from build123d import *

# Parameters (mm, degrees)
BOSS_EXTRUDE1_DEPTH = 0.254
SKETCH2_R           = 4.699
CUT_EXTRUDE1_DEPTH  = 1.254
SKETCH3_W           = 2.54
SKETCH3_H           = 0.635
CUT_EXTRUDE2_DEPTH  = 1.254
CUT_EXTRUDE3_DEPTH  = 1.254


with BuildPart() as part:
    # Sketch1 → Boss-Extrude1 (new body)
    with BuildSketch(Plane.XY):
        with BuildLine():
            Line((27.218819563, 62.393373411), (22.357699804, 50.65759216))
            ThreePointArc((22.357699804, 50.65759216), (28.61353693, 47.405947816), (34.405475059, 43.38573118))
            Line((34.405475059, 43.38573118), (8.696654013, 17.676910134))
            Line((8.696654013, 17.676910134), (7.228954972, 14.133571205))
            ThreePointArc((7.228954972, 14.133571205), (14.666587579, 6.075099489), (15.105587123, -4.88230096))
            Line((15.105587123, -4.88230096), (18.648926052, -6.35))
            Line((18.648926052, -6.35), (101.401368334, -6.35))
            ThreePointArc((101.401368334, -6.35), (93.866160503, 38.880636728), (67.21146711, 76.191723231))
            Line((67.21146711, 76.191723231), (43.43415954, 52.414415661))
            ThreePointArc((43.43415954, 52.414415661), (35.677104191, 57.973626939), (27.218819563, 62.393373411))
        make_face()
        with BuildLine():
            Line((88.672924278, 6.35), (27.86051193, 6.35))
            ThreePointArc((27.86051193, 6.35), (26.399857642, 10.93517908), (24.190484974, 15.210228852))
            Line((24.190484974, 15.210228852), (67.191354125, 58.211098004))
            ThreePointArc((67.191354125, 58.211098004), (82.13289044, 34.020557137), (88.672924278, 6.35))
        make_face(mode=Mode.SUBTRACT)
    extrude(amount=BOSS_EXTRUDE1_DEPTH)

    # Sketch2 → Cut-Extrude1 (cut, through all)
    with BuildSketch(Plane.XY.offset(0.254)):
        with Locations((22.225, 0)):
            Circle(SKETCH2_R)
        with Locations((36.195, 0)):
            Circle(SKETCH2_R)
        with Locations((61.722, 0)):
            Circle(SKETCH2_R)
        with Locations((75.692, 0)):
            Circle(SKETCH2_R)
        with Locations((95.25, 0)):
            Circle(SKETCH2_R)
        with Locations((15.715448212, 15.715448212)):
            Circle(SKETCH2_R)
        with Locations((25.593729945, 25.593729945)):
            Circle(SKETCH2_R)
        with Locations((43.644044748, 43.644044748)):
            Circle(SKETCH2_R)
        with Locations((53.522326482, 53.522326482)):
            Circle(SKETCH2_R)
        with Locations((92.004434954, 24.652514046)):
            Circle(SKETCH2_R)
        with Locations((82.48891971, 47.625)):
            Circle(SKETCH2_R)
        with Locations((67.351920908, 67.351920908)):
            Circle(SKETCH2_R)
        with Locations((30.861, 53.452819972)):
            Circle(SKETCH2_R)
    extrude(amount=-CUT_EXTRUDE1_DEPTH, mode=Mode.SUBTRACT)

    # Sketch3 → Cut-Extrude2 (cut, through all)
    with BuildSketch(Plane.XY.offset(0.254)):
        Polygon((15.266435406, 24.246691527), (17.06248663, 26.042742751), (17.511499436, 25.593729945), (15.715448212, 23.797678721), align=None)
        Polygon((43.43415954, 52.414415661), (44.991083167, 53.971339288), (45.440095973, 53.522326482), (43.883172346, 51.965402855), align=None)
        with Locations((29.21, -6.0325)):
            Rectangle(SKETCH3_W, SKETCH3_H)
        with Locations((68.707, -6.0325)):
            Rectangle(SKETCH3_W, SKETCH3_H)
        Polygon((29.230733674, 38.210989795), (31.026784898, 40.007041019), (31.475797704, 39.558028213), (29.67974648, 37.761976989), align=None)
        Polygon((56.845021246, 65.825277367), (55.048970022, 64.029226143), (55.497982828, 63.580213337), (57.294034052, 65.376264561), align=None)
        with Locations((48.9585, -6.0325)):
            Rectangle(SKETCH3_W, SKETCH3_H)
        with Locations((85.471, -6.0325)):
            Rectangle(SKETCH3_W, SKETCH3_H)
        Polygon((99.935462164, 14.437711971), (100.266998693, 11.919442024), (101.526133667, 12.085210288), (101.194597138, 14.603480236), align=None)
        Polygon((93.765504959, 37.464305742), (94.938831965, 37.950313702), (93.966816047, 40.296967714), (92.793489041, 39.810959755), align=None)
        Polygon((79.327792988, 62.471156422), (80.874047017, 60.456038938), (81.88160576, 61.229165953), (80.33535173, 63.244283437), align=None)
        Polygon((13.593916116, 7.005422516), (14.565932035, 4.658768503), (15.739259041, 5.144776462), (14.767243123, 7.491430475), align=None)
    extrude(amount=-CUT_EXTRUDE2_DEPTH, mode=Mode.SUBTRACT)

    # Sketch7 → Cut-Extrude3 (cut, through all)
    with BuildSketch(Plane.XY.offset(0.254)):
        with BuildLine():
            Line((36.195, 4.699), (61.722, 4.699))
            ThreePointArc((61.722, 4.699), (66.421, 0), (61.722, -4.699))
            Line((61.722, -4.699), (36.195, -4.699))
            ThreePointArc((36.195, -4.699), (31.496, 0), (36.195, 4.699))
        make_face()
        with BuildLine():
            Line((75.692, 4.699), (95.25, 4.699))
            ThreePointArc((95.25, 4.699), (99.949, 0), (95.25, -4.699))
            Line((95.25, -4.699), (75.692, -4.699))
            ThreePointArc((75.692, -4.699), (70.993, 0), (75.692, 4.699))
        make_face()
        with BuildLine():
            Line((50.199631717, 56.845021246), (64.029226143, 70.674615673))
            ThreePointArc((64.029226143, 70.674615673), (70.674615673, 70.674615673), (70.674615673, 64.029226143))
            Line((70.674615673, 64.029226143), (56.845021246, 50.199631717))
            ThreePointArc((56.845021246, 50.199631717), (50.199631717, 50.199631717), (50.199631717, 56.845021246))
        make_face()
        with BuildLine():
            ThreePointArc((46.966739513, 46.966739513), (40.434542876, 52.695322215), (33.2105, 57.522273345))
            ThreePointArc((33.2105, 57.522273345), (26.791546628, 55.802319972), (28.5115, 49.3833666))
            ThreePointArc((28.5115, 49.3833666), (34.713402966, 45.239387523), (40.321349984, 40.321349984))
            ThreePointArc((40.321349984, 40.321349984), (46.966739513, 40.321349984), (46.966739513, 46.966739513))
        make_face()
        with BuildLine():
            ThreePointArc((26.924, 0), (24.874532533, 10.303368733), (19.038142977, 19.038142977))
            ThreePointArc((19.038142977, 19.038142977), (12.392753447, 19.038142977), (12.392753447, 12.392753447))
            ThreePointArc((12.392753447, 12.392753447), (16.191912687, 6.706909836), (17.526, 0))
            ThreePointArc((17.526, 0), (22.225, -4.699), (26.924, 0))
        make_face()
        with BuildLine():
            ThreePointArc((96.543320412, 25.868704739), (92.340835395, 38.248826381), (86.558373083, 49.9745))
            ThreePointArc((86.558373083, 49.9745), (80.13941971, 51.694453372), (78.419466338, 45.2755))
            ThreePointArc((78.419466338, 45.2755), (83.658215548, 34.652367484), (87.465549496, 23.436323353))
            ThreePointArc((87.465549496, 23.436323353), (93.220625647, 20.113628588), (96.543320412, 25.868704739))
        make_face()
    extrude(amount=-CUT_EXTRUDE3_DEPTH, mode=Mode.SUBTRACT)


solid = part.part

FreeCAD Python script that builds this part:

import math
import FreeCAD as App
import Part
import Sketcher

V = App.Vector
Q = App.Units.Quantity

doc = App.newDocument("Part")
params = doc.addObject("Spreadsheet::Sheet", "Params")
for row, (alias, value) in enumerate([
    ("sketch1_radius", "4 in"),
    ("sketch1_radius2", "3.5 in"),
    ("sketch1_radius3", "2.18 in"),
    ("sketch1_radius4", "2.68 in"),
    ("sketch1_radius5", "0.625 in"),
    ("pad1_length", "0.01 in"),
    ("sketch2_diameter", "0.37 in"),
    ("sketch3_width", "0.1 in"),
    ("sketch3_length", "0.1 in"),
    ("sketch3_length2", "0.05 in"),
    ("sketch3_height", "0.025 in"),
    ("sketch3_length3", "0.025 in"),
    ("sketch4_radius", "1.06 in"),
    ("sketch4_radius2", "0.69 in"),
    ("sketch4_radius3", "2.615 in"),
    ("sketch4_radius4", "3.935 in"),
    ("sketch4_width", "0.77 in"),
], start=1):
    params.set(f"A{row}", alias)
    params.set(f"B{row}", "=" + value)
    params.setAlias(f"B{row}", alias)

body = doc.addObject("PartDesign::Body", "Body")

sketch1 = body.newObject("Sketcher::SketchObject", "Sketch")
sketch1.AttachmentSupport = (doc.getObject("XY_Plane"), [""])
sketch1.MapMode = "FlatFace"
sketch1.addGeometry([
    Part.LineSegment(V(27.21882, 62.393373, 0), V(22.3577, 50.657592, 0)),
    Part.ArcOfCircle(Part.Circle(V(0, 0, 0), V(0, 0, 1), 55.372), math.radians(51.585105), math.radians(66.185761)),
    Part.LineSegment(V(34.405475, 43.385731, 0), V(8.696654, 17.67691, 0)),
    Part.LineSegment(V(8.696654, 17.67691, 0), V(7.228955, 14.133571, 0)),
    Part.ArcOfCircle(Part.Circle(V(0, 0, 0), V(0, 0, 1), 15.875), math.radians(-17.911434), math.radians(62.911434)),
    Part.LineSegment(V(15.105587, -4.882301, 0), V(18.648926, -6.35, 0)),
    Part.LineSegment(V(18.648926, -6.35, 0), V(101.401368, -6.35, 0)),
    Part.ArcOfCircle(Part.Circle(V(0, 0, 0), V(0, 0, 1), 101.6), math.radians(-3.583322), math.radians(48.583322)),
    Part.LineSegment(V(67.211467, 76.191723, 0), V(43.43416, 52.414416, 0)),
    Part.ArcOfCircle(Part.Circle(V(0, 0, 0), V(0, 0, 1), 68.072), math.radians(50.352538), math.radians(66.430987)),
    Part.ArcOfCircle(Part.Circle(V(0, 0, 0), V(0, 0, 1), 88.9), math.radians(4.096044), math.radians(40.903956)),
    Part.LineSegment(V(88.672924, 6.35, 0), V(27.860512, 6.35, 0)),
    Part.ArcOfCircle(Part.Circle(V(0, 0, 0), V(0, 0, 1), 28.575), math.radians(12.839588), math.radians(32.160412)),
    Part.LineSegment(V(24.190485, 15.210229, 0), V(67.191354, 58.211098, 0)),
], False)
sketch1.addConstraint([
    Sketcher.Constraint("Coincident", 0, 2, 1, 2),
    Sketcher.Constraint("Coincident", 1, 1, 2, 1),
    Sketcher.Constraint("Coincident", 2, 2, 3, 1),
    Sketcher.Constraint("Coincident", 3, 2, 4, 2),
    Sketcher.Constraint("Coincident", 4, 1, 5, 1),
    Sketcher.Constraint("Coincident", 5, 2, 6, 1),
    Sketcher.Constraint("Coincident", 6, 2, 7, 1),
    Sketcher.Constraint("Coincident", 7, 2, 8, 1),
    Sketcher.Constraint("Coincident", 8, 2, 9, 1),
    Sketcher.Constraint("Coincident", 9, 2, 0, 1),
    Sketcher.Constraint("Coincident", 10, 1, 11, 1),
    Sketcher.Constraint("Coincident", 11, 2, 12, 1),
    Sketcher.Constraint("Coincident", 12, 2, 13, 1),
    Sketcher.Constraint("Coincident", 13, 2, 10, 2),
    Sketcher.Constraint("Horizontal", 6),
    Sketcher.Constraint("Horizontal", 11),
    Sketcher.Constraint("Coincident", 1, 3, -1, 1),
    Sketcher.Constraint("Coincident", 4, 3, -1, 1),
    Sketcher.Constraint("Coincident", 7, 3, -1, 1),
    Sketcher.Constraint("Coincident", 9, 3, -1, 1),
    Sketcher.Constraint("Coincident", 10, 3, -1, 1),
    Sketcher.Constraint("Coincident", 12, 3, -1, 1),
    Sketcher.Constraint("Parallel", 0, 3),
    Sketcher.Constraint("Perpendicular", 3, 5),
    Sketcher.Constraint("Parallel", 2, 8),
    Sketcher.Constraint("Parallel", 8, 13),
    Sketcher.Constraint("Equal", 3, 5),
    Sketcher.Constraint("Radius", 7, Q("4 in")),
    Sketcher.Constraint("Radius", 10, Q("3.5 in")),
    Sketcher.Constraint("Radius", 1, Q("2.18 in")),
    Sketcher.Constraint("Radius", 9, Q("2.68 in")),
    Sketcher.Constraint("Angle", 2, Q("-135 deg")),
    Sketcher.Constraint("Radius", 4, Q("0.625 in")),
    Sketcher.Constraint("Radius", 12, Q("1.125 in")),
    Sketcher.Constraint("Angle", 0, Q("-112.5 deg")),
    Sketcher.Constraint("DistanceY", 6, 2, 10, 1, Q("0.5 in")),
    Sketcher.Constraint("DistanceY", 5, 2, -1, 1, Q("0.25 in")),
    Sketcher.Constraint("DistanceX", -1, 1, 0, 2, 22.3577),
    Sketcher.Constraint("DistanceY", 4, 1, -1, 1, 4.882301),
    Sketcher.Constraint("DistanceY", -1, 1, 13, 2, 58.211098),
    Sketcher.Constraint("DistanceX", 7, 2, 6, 2, 34.189901),
    Sketcher.Constraint("DistanceY", -1, 1, 1, 1, 43.385731),
])
sketch1.setExpression("Constraints[27]", "Params.sketch1_radius")
sketch1.setExpression("Constraints[28]", "Params.sketch1_radius2")
sketch1.setExpression("Constraints[29]", "Params.sketch1_radius3")
sketch1.setExpression("Constraints[30]", "Params.sketch1_radius4")
sketch1.setExpression("Constraints[32]", "Params.sketch1_radius5")
pad1 = body.newObject("PartDesign::Pad", "Pad")
pad1.Profile = sketch1
pad1.setExpression("Length", "Params.pad1_length")

sketch2 = body.newObject("Sketcher::SketchObject", "Sketch001")
sketch2.AttachmentSupport = (doc.getObject("XY_Plane"), [""])
sketch2.MapMode = "FlatFace"
sketch2.AttachmentOffset = App.Placement(V(0, 0, 0.01 * 25.4), App.Rotation())
sketch2.addGeometry([
    Part.Circle(V(22.225, 0, 0), V(0, 0, 1), 4.699),
    Part.Circle(V(36.195, 0, 0), V(0, 0, 1), 4.699),
    Part.Circle(V(61.722, 0, 0), V(0, 0, 1), 4.699),
    Part.Circle(V(75.692, 0, 0), V(0, 0, 1), 4.699),
    Part.Circle(V(95.25, 0, 0), V(0, 0, 1), 4.699),
    Part.Circle(V(15.715448, 15.715448, 0), V(0, 0, 1), 4.699),
    Part.Circle(V(25.59373, 25.59373, 0), V(0, 0, 1), 4.699),
    Part.Circle(V(43.644045, 43.644045, 0), V(0, 0, 1), 4.699),
    Part.Circle(V(53.522326, 53.522326, 0), V(0, 0, 1), 4.699),
    Part.Circle(V(92.004435, 24.652514, 0), V(0, 0, 1), 4.699),
    Part.Circle(V(82.48892, 47.625, 0), V(0, 0, 1), 4.699),
    Part.Circle(V(67.351921, 67.351921, 0), V(0, 0, 1), 4.699),
    Part.Circle(V(30.861, 53.45282, 0), V(0, 0, 1), 4.699),
], False)
sketch2.addConstraint([
    Sketcher.Constraint("Equal", 0, 1),
    Sketcher.Constraint("Equal", 1, 2),
    Sketcher.Constraint("Equal", 2, 3),
    Sketcher.Constraint("Equal", 3, 4),
    Sketcher.Constraint("Equal", 4, 5),
    Sketcher.Constraint("Equal", 5, 6),
    Sketcher.Constraint("Equal", 6, 7),
    Sketcher.Constraint("Equal", 7, 8),
    Sketcher.Constraint("Equal", 8, 9),
    Sketcher.Constraint("Equal", 9, 10),
    Sketcher.Constraint("Equal", 10, 11),
    Sketcher.Constraint("Equal", 11, 12),
    Sketcher.Constraint("PointOnObject", 0, 3, -1),
    Sketcher.Constraint("PointOnObject", 1, 3, -1),
    Sketcher.Constraint("PointOnObject", 2, 3, -1),
    Sketcher.Constraint("PointOnObject", 3, 3, -1),
    Sketcher.Constraint("PointOnObject", 4, 3, -1),
    Sketcher.Constraint("Diameter", 0, Q("0.37 in")),
    Sketcher.Constraint("DistanceX", -1, 1, 2, 3, Q("2.43 in")),
    Sketcher.Constraint("DistanceX", -1, 1, 3, 3, Q("2.98 in")),
    Sketcher.Constraint("DistanceX", -1, 1, 4, 3, Q("3.75 in")),
    Sketcher.Constraint("DistanceX", 0, 3, 1, 3, Q("0.55 in")),
    Sketcher.Constraint("DistanceX", -1, 1, 0, 3, Q("0.875 in")),
    Sketcher.Constraint("DistanceY", -1, 1, 10, 3, Q("1.875 in")),
    Sketcher.Constraint("DistanceX", -1, 1, 12, 3, Q("1.215 in")),
    Sketcher.Constraint("DistanceX", 11, 3, 10, 3, 15.136999),
    Sketcher.Constraint("DistanceY", 12, 3, 11, 3, 13.899101),
    Sketcher.Constraint("DistanceX", -1, 1, 5, 3, 15.715448),
    Sketcher.Constraint("DistanceY", -1, 1, 5, 3, 15.715448),
    Sketcher.Constraint("DistanceX", -1, 1, 6, 3, 25.59373),
    Sketcher.Constraint("DistanceY", -1, 1, 6, 3, 25.59373),
    Sketcher.Constraint("DistanceX", -1, 1, 10, 3, 82.48892),
    Sketcher.Constraint("DistanceY", -1, 1, 11, 3, 67.351921),
    Sketcher.Constraint("DistanceX", 7, 3, 8, 3, 9.878282),
    Sketcher.Constraint("DistanceY", 7, 3, 8, 3, 9.878282),
    Sketcher.Constraint("DistanceX", 5, 3, 8, 3, 37.806878),
    Sketcher.Constraint("DistanceY", 5, 3, 8, 3, 37.806878),
    Sketcher.Constraint("DistanceX", 8, 3, 9, 3, 38.482108),
    Sketcher.Constraint("DistanceY", 9, 3, 7, 3, 18.991531),
])
sketch2.setExpression("Constraints[17]", "Params.sketch2_diameter")
pocket1 = body.newObject("PartDesign::Pocket", "Pocket")
pocket1.Profile = sketch2
pocket1.Type = "ThroughAll"

sketch3 = body.newObject("Sketcher::SketchObject", "Sketch002")
sketch3.AttachmentSupport = (doc.getObject("XY_Plane"), [""])
sketch3.MapMode = "FlatFace"
sketch3.AttachmentOffset = App.Placement(V(0, 0, 0.01 * 25.4), App.Rotation())
sketch3.addGeometry([
    Part.LineSegment(V(17.062487, 26.042743, 0), V(15.266435, 24.246692, 0)),
    Part.LineSegment(V(15.266435, 24.246692, 0), V(15.715448, 23.797679, 0)),
    Part.LineSegment(V(15.715448, 23.797679, 0), V(17.511499, 25.59373, 0)),
    Part.LineSegment(V(17.511499, 25.59373, 0), V(17.062487, 26.042743, 0)),
    Part.LineSegment(V(44.991083, 53.971339, 0), V(43.43416, 52.414416, 0)),
    Part.LineSegment(V(43.43416, 52.414416, 0), V(43.883172, 51.965403, 0)),
    Part.LineSegment(V(43.883172, 51.965403, 0), V(45.440096, 53.522326, 0)),
    Part.LineSegment(V(45.440096, 53.522326, 0), V(44.991083, 53.971339, 0)),
    Part.LineSegment(V(27.94, -5.715, 0), V(27.94, -6.35, 0)),
    Part.LineSegment(V(27.94, -6.35, 0), V(30.48, -6.35, 0)),
    Part.LineSegment(V(30.48, -6.35, 0), V(30.48, -5.715, 0)),
    Part.LineSegment(V(30.48, -5.715, 0), V(27.94, -5.715, 0)),
    Part.LineSegment(V(67.437, -5.715, 0), V(67.437, -6.35, 0)),
    Part.LineSegment(V(67.437, -6.35, 0), V(69.977, -6.35, 0)),
    Part.LineSegment(V(69.977, -6.35, 0), V(69.977, -5.715, 0)),
    Part.LineSegment(V(69.977, -5.715, 0), V(67.437, -5.715, 0)),
    Part.LineSegment(V(31.026785, 40.007041, 0), V(29.230734, 38.21099, 0)),
    Part.LineSegment(V(29.230734, 38.21099, 0), V(29.679746, 37.761977, 0)),
    Part.LineSegment(V(29.679746, 37.761977, 0), V(31.475798, 39.558028, 0)),
    Part.LineSegment(V(31.475798, 39.558028, 0), V(31.026785, 40.007041, 0)),
    Part.LineSegment(V(56.845021, 65.825277, 0), V(55.04897, 64.029226, 0)),
    Part.LineSegment(V(55.04897, 64.029226, 0), V(55.497983, 63.580213, 0)),
    Part.LineSegment(V(55.497983, 63.580213, 0), V(57.294034, 65.376265, 0)),
    Part.LineSegment(V(57.294034, 65.376265, 0), V(56.845021, 65.825277, 0)),
    Part.LineSegment(V(47.6885, -5.715, 0), V(47.6885, -6.35, 0)),
    Part.LineSegment(V(47.6885, -6.35, 0), V(50.2285, -6.35, 0)),
    Part.LineSegment(V(50.2285, -6.35, 0), V(50.2285, -5.715, 0)),
    Part.LineSegment(V(50.2285, -5.715, 0), V(47.6885, -5.715, 0)),
    Part.LineSegment(V(84.201, -5.715, 0), V(84.201, -6.35, 0)),
    Part.LineSegment(V(84.201, -6.35, 0), V(86.741, -6.35, 0)),
    Part.LineSegment(V(86.741, -6.35, 0), V(86.741, -5.715, 0)),
    Part.LineSegment(V(86.741, -5.715, 0), V(84.201, -5.715, 0)),
    Part.LineSegment(V(99.935462, 14.437712, 0), V(100.266999, 11.919442, 0)),
    Part.LineSegment(V(100.266999, 11.919442, 0), V(101.526134, 12.08521, 0)),
    Part.LineSegment(V(101.526134, 12.08521, 0), V(101.194597, 14.60348, 0)),
    Part.LineSegment(V(101.194597, 14.60348, 0), V(99.935462, 14.437712, 0)),
    Part.LineSegment(V(93.765505, 37.464306, 0), V(94.938832, 37.950314, 0)),
    Part.LineSegment(V(94.938832, 37.950314, 0), V(93.966816, 40.296968, 0)),
    Part.LineSegment(V(93.966816, 40.296968, 0), V(92.793489, 39.81096, 0)),
    Part.LineSegment(V(92.793489, 39.81096, 0), V(93.765505, 37.464306, 0)),
    Part.LineSegment(V(79.327793, 62.471156, 0), V(80.874047, 60.456039, 0)),
    Part.LineSegment(V(80.874047, 60.456039, 0), V(81.881606, 61.229166, 0)),
    Part.LineSegment(V(81.881606, 61.229166, 0), V(80.335352, 63.244283, 0)),
    Part.LineSegment(V(80.335352, 63.244283, 0), V(79.327793, 62.471156, 0)),
    Part.LineSegment(V(13.593916, 7.005423, 0), V(14.565932, 4.658769, 0)),
    Part.LineSegment(V(14.565932, 4.658769, 0), V(15.739259, 5.144776, 0)),
    Part.LineSegment(V(15.739259, 5.144776, 0), V(14.767243, 7.49143, 0)),
    Part.LineSegment(V(14.767243, 7.49143, 0), V(13.593916, 7.005423, 0)),
], False)
sketch3.addConstraint([
    Sketcher.Constraint("Coincident", 0, 2, 1, 1),
    Sketcher.Constraint("Coincident", 1, 2, 2, 1),
    Sketcher.Constraint("Coincident", 2, 2, 3, 1),
    Sketcher.Constraint("Coincident", 3, 2, 0, 1),
    Sketcher.Constraint("Coincident", 4, 2, 5, 1),
    Sketcher.Constraint("Coincident", 5, 2, 6, 1),
    Sketcher.Constraint("Coincident", 6, 2, 7, 1),
    Sketcher.Constraint("Coincident", 7, 2, 4, 1),
    Sketcher.Constraint("Coincident", 8, 2, 9, 1),
    Sketcher.Constraint("Coincident", 9, 2, 10, 1),
    Sketcher.Constraint("Coincident", 10, 2, 11, 1),
    Sketcher.Constraint("Coincident", 11, 2, 8, 1),
    Sketcher.Constraint("Coincident", 12, 2, 13, 1),
    Sketcher.Constraint("Coincident", 13, 2, 14, 1),
    Sketcher.Constraint("Coincident", 14, 2, 15, 1),
    Sketcher.Constraint("Coincident", 15, 2, 12, 1),
    Sketcher.Constraint("Coincident", 16, 2, 17, 1),
    Sketcher.Constraint("Coincident", 17, 2, 18, 1),
    Sketcher.Constraint("Coincident", 18, 2, 19, 1),
    Sketcher.Constraint("Coincident", 19, 2, 16, 1),
    Sketcher.Constraint("Coincident", 20, 2, 21, 1),
    Sketcher.Constraint("Coincident", 21, 2, 22, 1),
    Sketcher.Constraint("Coincident", 22, 2, 23, 1),
    Sketcher.Constraint("Coincident", 23, 2, 20, 1),
    Sketcher.Constraint("Coincident", 24, 2, 25, 1),
    Sketcher.Constraint("Coincident", 25, 2, 26, 1),
    Sketcher.Constraint("Coincident", 26, 2, 27, 1),
    Sketcher.Constraint("Coincident", 27, 2, 24, 1),
    Sketcher.Constraint("Coincident", 28, 2, 29, 1),
    Sketcher.Constraint("Coincident", 29, 2, 30, 1),
    Sketcher.Constraint("Coincident", 30, 2, 31, 1),
    Sketcher.Constraint("Coincident", 31, 2, 28, 1),
    Sketcher.Constraint("Coincident", 32, 2, 33, 1),
    Sketcher.Constraint("Coincident", 33, 2, 34, 1),
    Sketcher.Constraint("Coincident", 34, 2, 35, 1),
    Sketcher.Constraint("Coincident", 35, 2, 32, 1),
    Sketcher.Constraint("Coincident", 36, 2, 37, 1),
    Sketcher.Constraint("Coincident", 37, 2, 38, 1),
    Sketcher.Constraint("Coincident", 38, 2, 39, 1),
    Sketcher.Constraint("Coincident", 39, 2, 36, 1),
    Sketcher.Constraint("Coincident", 40, 2, 41, 1),
    Sketcher.Constraint("Coincident", 41, 2, 42, 1),
    Sketcher.Constraint("Coincident", 42, 2, 43, 1),
    Sketcher.Constraint("Coincident", 43, 2, 40, 1),
    Sketcher.Constraint("Coincident", 44, 2, 45, 1),
    Sketcher.Constraint("Coincident", 45, 2, 46, 1),
    Sketcher.Constraint("Coincident", 46, 2, 47, 1),
    Sketcher.Constraint("Coincident", 47, 2, 44, 1),
    Sketcher.Constraint("Vertical", 8),
    Sketcher.Constraint("Horizontal", 9),
    Sketcher.Constraint("Vertical", 10),
    Sketcher.Constraint("Horizontal", 11),
    Sketcher.Constraint("Vertical", 12),
    Sketcher.Constraint("Horizontal", 13),
    Sketcher.Constraint("Vertical", 14),
    Sketcher.Constraint("Horizontal", 15),
    Sketcher.Constraint("Vertical", 24),
    Sketcher.Constraint("Horizontal", 25),
    Sketcher.Constraint("Vertical", 26),
    Sketcher.Constraint("Horizontal", 27),
    Sketcher.Constraint("Vertical", 28),
    Sketcher.Constraint("Horizontal", 29),
    Sketcher.Constraint("Vertical", 30),
    Sketcher.Constraint("Horizontal", 31),
    Sketcher.Constraint("Perpendicular", 0, 1),
    Sketcher.Constraint("Perpendicular", 1, 2),
    Sketcher.Constraint("Perpendicular", 2, 3),
    Sketcher.Constraint("Perpendicular", 3, 4),
    Sketcher.Constraint("Perpendicular", 4, 5),
    Sketcher.Constraint("Perpendicular", 5, 6),
    Sketcher.Constraint("Perpendicular", 6, 7),
    Sketcher.Constraint("Perpendicular", 7, 16),
    Sketcher.Constraint("Perpendicular", 16, 17),
    Sketcher.Constraint("Perpendicular", 17, 18),
    Sketcher.Constraint("Perpendicular", 18, 19),
    Sketcher.Constraint("Perpendicular", 19, 20),
    Sketcher.Constraint("Perpendicular", 20, 21),
    Sketcher.Constraint("Perpendicular", 21, 22),
    Sketcher.Constraint("Perpendicular", 22, 23),
    Sketcher.Constraint("Perpendicular", 32, 33),
    Sketcher.Constraint("Perpendicular", 33, 34),
    Sketcher.Constraint("Perpendicular", 34, 35),
    Sketcher.Constraint("Perpendicular", 36, 37),
    Sketcher.Constraint("Perpendicular", 37, 38),
    Sketcher.Constraint("Perpendicular", 38, 39),
    Sketcher.Constraint("Perpendicular", 40, 41),
    Sketcher.Constraint("Perpendicular", 41, 42),
    Sketcher.Constraint("Perpendicular", 42, 43),
    Sketcher.Constraint("Parallel", 39, 44),
    Sketcher.Constraint("Perpendicular", 44, 45),
    Sketcher.Constraint("Perpendicular", 45, 46),
    Sketcher.Constraint("Perpendicular", 46, 47),
    Sketcher.Constraint("Horizontal", 9, 2, 12, 2),
    Sketcher.Constraint("Horizontal", 11, 2, 14, 2),
    Sketcher.Constraint("Horizontal", 13, 2, 24, 2),
    Sketcher.Constraint("Horizontal", 15, 2, 26, 2),
    Sketcher.Constraint("Horizontal", 25, 2, 28, 2),
    Sketcher.Constraint("Horizontal", 27, 2, 30, 2),
    Sketcher.Constraint("Equal", 11, 13),
    Sketcher.Constraint("Equal", 15, 25),
    Sketcher.Constraint("Equal", 27, 29),
    Sketcher.Constraint("Equal", 3, 5),
    Sketcher.Constraint("Equal", 2, 16),
    Sketcher.Constraint("Equal", 7, 17),
    Sketcher.Constraint("Equal", 18, 20),
    Sketcher.Constraint("Equal", 19, 21),
    Sketcher.Constraint("Equal", 22, 32),
    Sketcher.Constraint("Equal", 35, 36),
    Sketcher.Constraint("Equal", 34, 37),
    Sketcher.Constraint("Equal", 39, 40),
    Sketcher.Constraint("Equal", 38, 41),
    Sketcher.Constraint("Equal", 42, 44),
    Sketcher.Constraint("Equal", 43, 45),
    Sketcher.Constraint("DistanceX", 9, 1, 9, 2, Q("0.1 in")),
    Sketcher.Constraint("Angle", 0, Q("-135 deg")),
    Sketcher.Constraint("Distance", 0, Q("0.1 in")),
    Sketcher.Constraint("DistanceX", -1, 1, 8, 2, Q("1.1 in")),
    Sketcher.Constraint("Angle", 32, Q("-82.5 deg")),
    Sketcher.Constraint("Angle", 36, Q("22.5 deg")),
    Sketcher.Constraint("Angle", 40, Q("-52.5 deg")),
    Sketcher.Constraint("Distance", 33, Q("0.05 in")),
    Sketcher.Constraint("DistanceY", 8, 2, 8, 1, Q("0.025 in")),
    Sketcher.Constraint("DistanceY", 8, 2, -1, 1, Q("0.25 in")),
    Sketcher.Constraint("DistanceX", 13, 2, 28, 2, Q("0.56 in")),
    Sketcher.Constraint("Distance", 1, Q("0.025 in")),
    Sketcher.Constraint("DistanceX", -1, 1, 12, 2, Q("2.655 in")),
    Sketcher.Constraint("DistanceX", -1, 1, 24, 2, Q("1.8775 in")),
    Sketcher.Constraint("DistanceX", -1, 1, 2, 2, 17.511499),
    Sketcher.Constraint("DistanceX", -1, 1, 32, 2, 100.266999),
    Sketcher.Constraint("DistanceX", 0, 2, 16, 2, 13.964298),
    Sketcher.Constraint("DistanceY", 0, 2, 16, 2, 13.964298),
    Sketcher.Constraint("DistanceY", 6, 2, 20, 2, 10.5069),
    Sketcher.Constraint("DistanceX", 7, 2, 21, 2, 10.5069),
    Sketcher.Constraint("DistanceY", 35, 2, 36, 2, 23.512602),
    Sketcher.Constraint("DistanceX", 36, 2, 33, 2, 6.587302),
    Sketcher.Constraint("DistanceY", 37, 2, 41, 2, 20.932198),
    Sketcher.Constraint("DistanceY", 41, 2, 22, 2, 4.147099),
    Sketcher.Constraint("DistanceY", 46, 2, 2, 2, 18.102299),
    Sketcher.Constraint("DistanceY", -1, 1, 0, 2, 24.246692),
    Sketcher.Constraint("DistanceX", -1, 1, 4, 2, 43.43416),
    Sketcher.Constraint("DistanceY", -1, 1, 7, 2, 53.971339),
    Sketcher.Constraint("DistanceX", -1, 1, 20, 2, 55.04897),
    Sketcher.Constraint("DistanceX", -1, 1, 42, 2, 80.335352),
    Sketcher.Constraint("DistanceX", -1, 1, 45, 2, 15.739259),
])
sketch3.setExpression("Constraints[113]", "Params.sketch3_width")
sketch3.setExpression("Constraints[115]", "Params.sketch3_length")
sketch3.setExpression("Constraints[120]", "Params.sketch3_length2")
sketch3.setExpression("Constraints[121]", "Params.sketch3_height")
sketch3.setExpression("Constraints[124]", "Params.sketch3_length3")
pocket2 = body.newObject("PartDesign::Pocket", "Pocket001")
pocket2.Profile = sketch3
pocket2.Type = "ThroughAll"

sketch4 = body.newObject("Sketcher::SketchObject", "Sketch003")
sketch4.AttachmentSupport = (doc.getObject("XY_Plane"), [""])
sketch4.MapMode = "FlatFace"
sketch4.AttachmentOffset = App.Placement(V(0, 0, 0.01 * 25.4), App.Rotation())
sketch4.addGeometry([
    Part.LineSegment(V(61.722, 4.699, 0), V(36.195, 4.699, 0)),
    Part.ArcOfCircle(Part.Circle(V(36.195, 0, 0), V(0, 0, 1), 4.699), math.radians(90), math.radians(270)),
    Part.LineSegment(V(36.195, -4.699, 0), V(61.722, -4.699, 0)),
    Part.ArcOfCircle(Part.Circle(V(61.722, 0, 0), V(0, 0, 1), 4.699), math.radians(-90), math.radians(90)),
    Part.LineSegment(V(95.25, 4.699, 0), V(75.692, 4.699, 0)),
    Part.ArcOfCircle(Part.Circle(V(75.692, 0, 0), V(0, 0, 1), 4.699), math.radians(90), math.radians(270)),
    Part.LineSegment(V(75.692, -4.699, 0), V(95.25, -4.699, 0)),
    Part.ArcOfCircle(Part.Circle(V(95.25, 0, 0), V(0, 0, 1), 4.699), math.radians(-90), math.radians(90)),
    Part.LineSegment(V(64.029226, 70.674616, 0), V(50.199632, 56.845021, 0)),
    Part.ArcOfCircle(Part.Circle(V(53.522326, 53.522326, 0), V(0, 0, 1), 4.699), math.radians(135), math.radians(315)),
    Part.LineSegment(V(56.845021, 50.199632, 0), V(70.674616, 64.029226, 0)),
    Part.ArcOfCircle(Part.Circle(V(67.351921, 67.351921, 0), V(0, 0, 1), 4.699), math.radians(-45), math.radians(135)),
    Part.ArcOfCircle(Part.Circle(V(0, 0, 0), V(0, 0, 1), 66.421), math.radians(45), math.radians(60)),
    Part.ArcOfCircle(Part.Circle(V(30.861, 53.45282, 0), V(0, 0, 1), 4.699), math.radians(60), math.radians(240)),
    Part.ArcOfCircle(Part.Circle(V(0, 0, 0), V(0, 0, 1), 57.023), math.radians(45), math.radians(60)),
    Part.ArcOfCircle(Part.Circle(V(43.644045, 43.644045, 0), V(0, 0, 1), 4.699), math.radians(-135), math.radians(45)),
    Part.ArcOfCircle(Part.Circle(V(0, 0, 0), V(0, 0, 1), 26.924), math.radians(0), math.radians(45)),
    Part.ArcOfCircle(Part.Circle(V(15.715448, 15.715448, 0), V(0, 0, 1), 4.699), math.radians(45), math.radians(225)),
    Part.ArcOfCircle(Part.Circle(V(0, 0, 0), V(0, 0, 1), 17.526), math.radians(0), math.radians(45)),
    Part.ArcOfCircle(Part.Circle(V(22.225, 0, 0), V(0, 0, 1), 4.699), math.radians(180), math.radians(360)),
    Part.ArcOfCircle(Part.Circle(V(0, 0, 0), V(0, 0, 1), 99.949), math.radians(15), math.radians(30)),
    Part.ArcOfCircle(Part.Circle(V(82.48892, 47.625, 0), V(0, 0, 1), 4.699), math.radians(30), math.radians(210)),
    Part.ArcOfCircle(Part.Circle(V(0, 0, 0), V(0, 0, 1), 90.551), math.radians(15), math.radians(30)),
    Part.ArcOfCircle(Part.Circle(V(92.004435, 24.652514, 0), V(0, 0, 1), 4.699), math.radians(-165), math.radians(15)),
], False)
sketch4.addConstraint([
    Sketcher.Constraint("Tangent", 0, 2, 1, 1),
    Sketcher.Constraint("Tangent", 1, 2, 2, 1),
    Sketcher.Constraint("Tangent", 2, 2, 3, 1),
    Sketcher.Constraint("Tangent", 3, 2, 0, 1),
    Sketcher.Constraint("Tangent", 4, 2, 5, 1),
    Sketcher.Constraint("Tangent", 5, 2, 6, 1),
    Sketcher.Constraint("Tangent", 6, 2, 7, 1),
    Sketcher.Constraint("Tangent", 7, 2, 4, 1),
    Sketcher.Constraint("Tangent", 8, 2, 9, 1),
    Sketcher.Constraint("Tangent", 9, 2, 10, 1),
    Sketcher.Constraint("Tangent", 10, 2, 11, 1),
    Sketcher.Constraint("Tangent", 11, 2, 8, 1),
    Sketcher.Constraint("Tangent", 12, 2, 13, 1),
    Sketcher.Constraint("Tangent", 13, 2, 14, 2),
    Sketcher.Constraint("Tangent", 14, 1, 15, 1),
    Sketcher.Constraint("Tangent", 15, 2, 12, 1),
    Sketcher.Constraint("Tangent", 16, 2, 17, 1),
    Sketcher.Constraint("Tangent", 17, 2, 18, 2),
    Sketcher.Constraint("Tangent", 18, 1, 19, 1),
    Sketcher.Constraint("Tangent", 19, 2, 16, 1),
    Sketcher.Constraint("Tangent", 20, 2, 21, 1),
    Sketcher.Constraint("Tangent", 21, 2, 22, 2),
    Sketcher.Constraint("Tangent", 22, 1, 23, 1),
    Sketcher.Constraint("Tangent", 23, 2, 20, 1),
    Sketcher.Constraint("Horizontal", 0),
    Sketcher.Constraint("Horizontal", 2),
    Sketcher.Constraint("Horizontal", 4),
    Sketcher.Constraint("Horizontal", 6),
    Sketcher.Constraint("Coincident", 12, 3, -1, 1),
    Sketcher.Constraint("Coincident", 14, 3, -1, 1),
    Sketcher.Constraint("Coincident", 16, 3, -1, 1),
    Sketcher.Constraint("Coincident", 18, 3, -1, 1),
    Sketcher.Constraint("Coincident", 20, 3, -1, 1),
    Sketcher.Constraint("Coincident", 22, 3, -1, 1),
    Sketcher.Constraint("Equal", 3, 5),
    Sketcher.Constraint("Equal", 7, 9),
    Sketcher.Constraint("Equal", 9, 11),
    Sketcher.Constraint("Equal", 11, 13),
    Sketcher.Constraint("Equal", 15, 17),
    Sketcher.Constraint("Equal", 19, 21),
    Sketcher.Constraint("PointOnObject", 1, 3, -1),
    Sketcher.Constraint("PointOnObject", 5, 3, -1),
    Sketcher.Constraint("PointOnObject", 19, 3, -1),
    Sketcher.Constraint("Radius", 16, Q("1.06 in")),
    Sketcher.Constraint("Radius", 18, Q("0.69 in")),
    Sketcher.Constraint("Angle", 8, Q("-135 deg")),
    Sketcher.Constraint("Radius", 12, Q("2.615 in")),
    Sketcher.Constraint("Radius", 20, Q("3.935 in")),
    Sketcher.Constraint("DistanceX", 4, 2, 4, 1, Q("0.77 in")),
    Sketcher.Constraint("Distance", 8, Q("0.77 in")),
    Sketcher.Constraint("DistanceX", 0, 2, 0, 1, Q("1.005 in")),
    Sketcher.Constraint("DistanceX", -1, 1, 3, 3, Q("2.43 in")),
    Sketcher.Constraint("DistanceX", -1, 1, 5, 3, Q("2.98 in")),
    Sketcher.Constraint("DistanceX", 13, 3, 1, 3, Q("0.21 in")),
    Sketcher.Constraint("DistanceY", -1, 1, 21, 3, Q("1.875 in")),
    Sketcher.Constraint("DistanceY", 13, 3, 11, 3, 13.899101),
    Sketcher.Constraint("DistanceX", 11, 3, 21, 3, 15.136999),
    Sketcher.Constraint("DistanceX", 21, 3, 23, 2, 14.054401),
    Sketcher.Constraint("DistanceX", -1, 1, 17, 3, 15.715448),
    Sketcher.Constraint("DistanceX", -1, 1, 14, 1, 40.32135),
])
sketch4.setExpression("Constraints[43]", "Params.sketch4_radius")
sketch4.setExpression("Constraints[44]", "Params.sketch4_radius2")
sketch4.setExpression("Constraints[46]", "Params.sketch4_radius3")
sketch4.setExpression("Constraints[47]", "Params.sketch4_radius4")
sketch4.setExpression("Constraints[48]", "Params.sketch4_width")
pocket3 = body.newObject("PartDesign::Pocket", "Pocket002")
pocket3.Profile = sketch4
pocket3.Type = "ThroughAll"

doc.recompute()
